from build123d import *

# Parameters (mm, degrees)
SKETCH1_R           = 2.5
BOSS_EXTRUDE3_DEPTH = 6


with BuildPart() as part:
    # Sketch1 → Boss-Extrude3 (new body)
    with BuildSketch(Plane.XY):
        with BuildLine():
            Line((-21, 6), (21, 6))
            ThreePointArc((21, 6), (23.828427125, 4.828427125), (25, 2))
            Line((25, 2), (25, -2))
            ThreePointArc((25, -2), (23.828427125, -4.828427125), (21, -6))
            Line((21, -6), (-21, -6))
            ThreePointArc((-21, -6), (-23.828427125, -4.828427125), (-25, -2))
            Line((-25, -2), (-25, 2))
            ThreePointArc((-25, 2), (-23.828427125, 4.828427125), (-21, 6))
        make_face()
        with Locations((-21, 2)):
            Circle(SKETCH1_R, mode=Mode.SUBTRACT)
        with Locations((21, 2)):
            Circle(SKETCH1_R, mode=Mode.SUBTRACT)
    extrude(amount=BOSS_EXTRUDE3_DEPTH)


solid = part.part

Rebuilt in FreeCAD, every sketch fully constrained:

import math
import FreeCAD as App
import Part
import Sketcher
from FreeCAD import Vector

doc = App.newDocument("Part")
params = doc.addObject("Spreadsheet::Sheet", "Params")
for row, (alias, value) in enumerate([
    ("sketch1_diameter", "5 mm"),
    ("sketch1_radius", "4 mm"),
    ("sketch1_width", "42 mm"),
    ("sketch1_height", "4 mm"),
    ("pad1_length", "6 mm"),
], start=1):
    params.set(f"A{row}", alias)
    params.set(f"B{row}", "=" + value)
    params.setAlias(f"B{row}", alias)

body = doc.addObject("PartDesign::Body", "Body")

# Sketch on XY plane
sketch1 = body.newObject("Sketcher::SketchObject", "Sketch")
sketch1.AttachmentSupport = (doc.getObject("XY_Plane"), [""])
sketch1.MapMode = "FlatFace"
sketch1.addGeometry([
    Part.LineSegment(Vector(21, 6, 0), Vector(-21, 6, 0)),  # 0
    Part.ArcOfCircle(Part.Circle(Vector(-21, 2, 0), Vector(0, 0, 1), 4), math.radians(90), math.radians(180)),  # 1
    Part.LineSegment(Vector(-25, 2, 0), Vector(-25, -2, 0)),  # 2
    Part.ArcOfCircle(Part.Circle(Vector(-21, -2, 0), Vector(0, 0, 1), 4), math.radians(180), math.radians(270)),  # 3
    Part.LineSegment(Vector(-21, -6, 0), Vector(21, -6, 0)),  # 4
    Part.ArcOfCircle(Part.Circle(Vector(21, -2, 0), Vector(0, 0, 1), 4), math.radians(-90), math.radians(0)),  # 5
    Part.LineSegment(Vector(25, -2, 0), Vector(25, 2, 0)),  # 6
    Part.ArcOfCircle(Part.Circle(Vector(21, 2, 0), Vector(0, 0, 1), 4), math.radians(0), math.radians(90)),  # 7
    Part.Circle(Vector(21, 2, 0), Vector(0, 0, 1), 2.5),  # 8
    Part.Circle(Vector(-21, 2, 0), Vector(0, 0, 1), 2.5),  # 9
], False)
sketch1.addConstraint([
    Sketcher.Constraint("Tangent", 0, 2, 1, 1),
    Sketcher.Constraint("Tangent", 1, 2, 2, 1),
    Sketcher.Constraint("Tangent", 2, 2, 3, 1),
    Sketcher.Constraint("Tangent", 3, 2, 4, 1),
    Sketcher.Constraint("Tangent", 4, 2, 5, 1),
    Sketcher.Constraint("Tangent", 5, 2, 6, 1),
    Sketcher.Constraint("Tangent", 6, 2, 7, 1),
    Sketcher.Constraint("Tangent", 7, 2, 0, 1),
    Sketcher.Constraint("Horizontal", 0),
    Sketcher.Constraint("Vertical", 2),
    Sketcher.Constraint("Horizontal", 4),
    Sketcher.Constraint("Vertical", 6),
    Sketcher.Constraint("Coincident", 8, 3, 7, 3),
    Sketcher.Constraint("Coincident", 9, 3, 1, 3),
    Sketcher.Constraint("Equal", 1, 3),
    Sketcher.Constraint("Equal", 3, 5),
    Sketcher.Constraint("Equal", 5, 7),
    Sketcher.Constraint("Equal", 8, 9),
    Sketcher.Constraint("Symmetric", 1, 3, 5, 3, -1, 1),
    Sketcher.Constraint("Diameter", 8, 5.0),
    Sketcher.Constraint("Radius", 1, 4.0),
    Sketcher.Constraint("DistanceX", 0, 2, 0, 1, 42.0),
    Sketcher.Constraint("DistanceY", 2, 2, 2, 1, 4.0),
])
sketch1.setExpression("Constraints[19]", "Params.sketch1_diameter")
sketch1.setExpression("Constraints[20]", "Params.sketch1_radius")
sketch1.setExpression("Constraints[21]", "Params.sketch1_width")
sketch1.setExpression("Constraints[22]", "Params.sketch1_height")
pad1 = body.newObject("PartDesign::Pad", "Pad")
pad1.Profile = sketch1
pad1.setExpression("Length", "Params.pad1_length")

doc.recompute()
